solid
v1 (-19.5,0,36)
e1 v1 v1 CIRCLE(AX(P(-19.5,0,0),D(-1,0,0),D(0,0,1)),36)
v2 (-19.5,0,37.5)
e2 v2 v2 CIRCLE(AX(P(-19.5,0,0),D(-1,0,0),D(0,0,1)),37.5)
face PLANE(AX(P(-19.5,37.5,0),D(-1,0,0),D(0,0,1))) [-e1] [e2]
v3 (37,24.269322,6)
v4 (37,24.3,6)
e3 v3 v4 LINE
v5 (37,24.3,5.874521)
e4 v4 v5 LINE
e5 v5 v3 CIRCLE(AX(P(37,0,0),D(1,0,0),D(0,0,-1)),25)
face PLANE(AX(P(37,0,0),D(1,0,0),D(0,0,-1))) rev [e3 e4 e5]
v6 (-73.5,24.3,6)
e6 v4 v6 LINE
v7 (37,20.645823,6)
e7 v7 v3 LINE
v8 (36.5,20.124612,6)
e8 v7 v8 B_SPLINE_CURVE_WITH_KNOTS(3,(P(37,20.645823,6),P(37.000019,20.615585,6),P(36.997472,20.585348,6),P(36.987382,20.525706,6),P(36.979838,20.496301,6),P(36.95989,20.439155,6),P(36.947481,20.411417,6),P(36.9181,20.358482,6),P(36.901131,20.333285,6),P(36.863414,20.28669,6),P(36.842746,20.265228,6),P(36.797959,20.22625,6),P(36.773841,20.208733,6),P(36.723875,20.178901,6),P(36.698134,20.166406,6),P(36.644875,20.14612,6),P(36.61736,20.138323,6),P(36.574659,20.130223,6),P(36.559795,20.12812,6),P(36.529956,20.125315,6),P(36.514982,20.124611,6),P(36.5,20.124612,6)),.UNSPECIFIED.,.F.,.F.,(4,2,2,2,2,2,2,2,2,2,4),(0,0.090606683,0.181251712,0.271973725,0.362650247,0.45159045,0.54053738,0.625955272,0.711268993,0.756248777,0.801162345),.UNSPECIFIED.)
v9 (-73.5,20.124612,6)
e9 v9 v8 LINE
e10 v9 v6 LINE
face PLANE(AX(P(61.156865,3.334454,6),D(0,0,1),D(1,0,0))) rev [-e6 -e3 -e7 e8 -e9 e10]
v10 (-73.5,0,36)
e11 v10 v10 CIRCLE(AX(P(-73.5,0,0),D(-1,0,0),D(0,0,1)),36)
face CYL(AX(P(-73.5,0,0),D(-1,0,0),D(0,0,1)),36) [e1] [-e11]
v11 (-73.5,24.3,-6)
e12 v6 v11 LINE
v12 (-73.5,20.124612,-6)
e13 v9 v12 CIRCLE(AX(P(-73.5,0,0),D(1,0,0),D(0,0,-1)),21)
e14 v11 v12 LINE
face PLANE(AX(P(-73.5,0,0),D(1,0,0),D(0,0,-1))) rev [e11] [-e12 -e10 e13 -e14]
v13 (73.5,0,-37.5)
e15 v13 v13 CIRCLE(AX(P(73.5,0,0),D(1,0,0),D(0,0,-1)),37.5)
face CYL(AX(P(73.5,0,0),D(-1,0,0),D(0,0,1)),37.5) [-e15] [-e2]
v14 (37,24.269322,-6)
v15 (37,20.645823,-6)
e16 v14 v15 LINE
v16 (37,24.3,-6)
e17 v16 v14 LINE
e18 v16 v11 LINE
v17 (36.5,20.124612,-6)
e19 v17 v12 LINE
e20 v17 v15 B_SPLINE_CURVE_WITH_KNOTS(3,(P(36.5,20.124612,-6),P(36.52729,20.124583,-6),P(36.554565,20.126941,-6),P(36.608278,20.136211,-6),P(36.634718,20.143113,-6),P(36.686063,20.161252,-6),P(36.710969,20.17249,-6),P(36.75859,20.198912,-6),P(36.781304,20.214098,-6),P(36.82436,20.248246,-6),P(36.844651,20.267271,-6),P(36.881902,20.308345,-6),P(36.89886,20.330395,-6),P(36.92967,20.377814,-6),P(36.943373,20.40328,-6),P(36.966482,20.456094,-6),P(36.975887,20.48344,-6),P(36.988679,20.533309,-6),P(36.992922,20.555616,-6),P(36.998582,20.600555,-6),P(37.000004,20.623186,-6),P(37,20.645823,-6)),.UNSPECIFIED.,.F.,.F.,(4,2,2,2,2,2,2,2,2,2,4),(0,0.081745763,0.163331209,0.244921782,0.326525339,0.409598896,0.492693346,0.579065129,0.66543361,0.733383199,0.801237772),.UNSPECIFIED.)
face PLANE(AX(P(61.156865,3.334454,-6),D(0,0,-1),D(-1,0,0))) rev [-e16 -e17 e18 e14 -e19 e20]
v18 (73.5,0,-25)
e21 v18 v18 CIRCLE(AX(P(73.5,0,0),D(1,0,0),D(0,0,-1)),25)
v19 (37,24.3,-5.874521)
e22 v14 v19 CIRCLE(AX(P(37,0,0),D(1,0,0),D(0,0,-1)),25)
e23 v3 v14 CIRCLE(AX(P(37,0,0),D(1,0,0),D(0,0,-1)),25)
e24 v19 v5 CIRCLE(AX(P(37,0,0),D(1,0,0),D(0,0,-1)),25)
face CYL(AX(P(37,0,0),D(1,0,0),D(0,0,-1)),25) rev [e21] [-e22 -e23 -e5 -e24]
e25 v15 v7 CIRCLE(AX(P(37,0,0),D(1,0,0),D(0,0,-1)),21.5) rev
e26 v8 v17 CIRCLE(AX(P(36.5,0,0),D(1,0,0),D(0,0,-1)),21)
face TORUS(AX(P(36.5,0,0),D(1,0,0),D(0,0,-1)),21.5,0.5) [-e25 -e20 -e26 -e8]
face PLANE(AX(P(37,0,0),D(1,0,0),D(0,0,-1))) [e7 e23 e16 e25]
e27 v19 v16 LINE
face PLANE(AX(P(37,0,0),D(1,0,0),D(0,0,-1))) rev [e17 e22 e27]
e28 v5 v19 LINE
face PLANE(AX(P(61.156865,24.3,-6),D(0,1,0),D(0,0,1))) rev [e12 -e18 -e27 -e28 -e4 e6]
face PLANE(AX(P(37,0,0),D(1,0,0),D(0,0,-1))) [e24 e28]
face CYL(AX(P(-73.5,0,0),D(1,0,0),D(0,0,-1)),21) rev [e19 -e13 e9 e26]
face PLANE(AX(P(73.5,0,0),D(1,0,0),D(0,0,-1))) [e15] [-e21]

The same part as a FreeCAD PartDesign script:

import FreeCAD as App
import Part
import Sketcher

V = App.Vector


def edges_at(feature, points):
    """Names of the edges that pass closest to the given points."""
    edges = feature.Shape.Edges
    near = lambda p: min(range(len(edges)), key=lambda i: edges[i].distToShape(Part.Vertex(*p))[0])
    return sorted({f"Edge{near(p) + 1}" for p in points})


def add_polygon(sketch, points):
    """Adds a closed chain of lines whose ends are joined by coincident constraints."""
    first, n = sketch.GeometryCount, len(points)
    for a, b in zip(points, points[1:] + points[:1]):
        sketch.addGeometry(Part.LineSegment(App.Vector(*a, 0), App.Vector(*b, 0)), False)
    for i in range(n):
        sketch.addConstraint(Sketcher.Constraint("Coincident", first + i, 2, first + (i + 1) % n, 1))

doc = App.newDocument("Part")
body = doc.addObject("PartDesign::Body", "Body")

sketch1 = body.newObject("Sketcher::SketchObject", "Sketch")
sketch1.AttachmentSupport = (doc.getObject("YZ_Plane"), [""])
sketch1.MapMode = "FlatFace"
sketch1.addGeometry(Part.Circle(V(0, 0, 0), V(0, 0, 1), 38), False)
sketch1.addConstraint([
    Sketcher.Constraint("Coincident", 0, 3, -1, 1),
    Sketcher.Constraint("Diameter", 0, 75.0),
])
pad1 = body.newObject("PartDesign::Pad", "Pad")
pad1.Profile = sketch1
pad1.Length = 147
pad1.Midplane = True

sketch2 = body.newObject("Sketcher::SketchObject", "Sketch001")
sketch2.AttachmentSupport = (doc.getObject("YZ_Plane"), [""])
sketch2.MapMode = "FlatFace"
sketch2.AttachmentOffset = App.Placement(V(0, 0, 73.5), App.Rotation())
sketch2.addGeometry(Part.Circle(V(0, 0, 0), V(0, 0, 1), 21), False)
sketch2.addConstraint([
    Sketcher.Constraint("Coincident", 0, 3, -1, 1),
    Sketcher.Constraint("Diameter", 0, 42.0),
])
pocket1 = body.newObject("PartDesign::Pocket", "Pocket")
pocket1.Profile = sketch2
pocket1.Type = "ThroughAll"

sketch3 = body.newObject("Sketcher::SketchObject", "Sketch002")
sketch3.AttachmentSupport = (doc.getObject("YZ_Plane"), [""])
sketch3.MapMode = "FlatFace"
sketch3.AttachmentOffset = App.Placement(V(0, 0, 73.5), App.Rotation())
sketch3.addGeometry(Part.Circle(V(0, 0, 0), V(0, 0, 1), 25), False)
sketch3.addConstraint([
    Sketcher.Constraint("Coincident", 0, 3, -1, 1),
    Sketcher.Constraint("Diameter", 0, 50.0),
])
pocket2 = body.newObject("PartDesign::Pocket", "Pocket001")
pocket2.Profile = sketch3
pocket2.Length = 36.5

sketch4 = body.newObject("Sketcher::SketchObject", "Sketch003")
sketch4.AttachmentSupport = (doc.getObject("YZ_Plane"), [""])
sketch4.MapMode = "FlatFace"
sketch4.AttachmentOffset = App.Placement(V(0, 0, -73.5), App.Rotation())
add_polygon(sketch4, [(24, -6), (3, -6), (3, 6), (24, 6)])
sketch4.addConstraint([
    Sketcher.Constraint("Horizontal", 0),
    Sketcher.Constraint("Vertical", 1),
    Sketcher.Constraint("Horizontal", 2),
    Sketcher.Constraint("Vertical", 3),
    Sketcher.Constraint("DistanceY", 1, 1, 1, 2, 12.0),
    Sketcher.Constraint("DistanceY", 0, 2, -1, 1, 6.0),
    Sketcher.Constraint("DistanceX", -1, 1, 2, 2, 24.3),
    Sketcher.Constraint("DistanceX", 0, 2, 0, 1, 20.965546),
])
pocket3 = body.newObject("PartDesign::Pocket", "Pocket002")
pocket3.Profile = sketch4
pocket3.Length = 110.5
pocket3.Reversed = True
doc.recompute()

fillet = body.newObject("PartDesign::Fillet", "Fillet")
fillet.Base = (pocket3, edges_at(pocket3, [(37, -21, 0)]))
fillet.Radius = 0.5

sketch5 = body.newObject("Sketcher::SketchObject", "Sketch004")
sketch5.AttachmentSupport = (doc.getObject("XY_Plane"), [""])
sketch5.MapMode = "FlatFace"
add_polygon(sketch5, [(-73.5, 37.5), (-73.5, 36), (-19.5, 36), (-19.5, 37.5)])
sketch5.addConstraint([
    Sketcher.Constraint("Vertical", 0),
    Sketcher.Constraint("Horizontal", 1),
    Sketcher.Constraint("Vertical", 2),
    Sketcher.Constraint("Horizontal", 3),
    Sketcher.Constraint("DistanceX", 1, 1, 1, 2, 54.0),
    Sketcher.Constraint("DistanceY", 0, 2, 0, 1, 1.5),
    Sketcher.Constraint("DistanceY", -1, 1, 0, 2, 36.0),
    Sketcher.Constraint("DistanceX", 0, 2, -1, 1, 73.5),
])
groove = body.newObject("PartDesign::Groove", "Groove")
groove.Profile = sketch5
groove.ReferenceAxis = (sketch5, ["H_Axis"])
groove.Angle = 360

doc.recompute()
